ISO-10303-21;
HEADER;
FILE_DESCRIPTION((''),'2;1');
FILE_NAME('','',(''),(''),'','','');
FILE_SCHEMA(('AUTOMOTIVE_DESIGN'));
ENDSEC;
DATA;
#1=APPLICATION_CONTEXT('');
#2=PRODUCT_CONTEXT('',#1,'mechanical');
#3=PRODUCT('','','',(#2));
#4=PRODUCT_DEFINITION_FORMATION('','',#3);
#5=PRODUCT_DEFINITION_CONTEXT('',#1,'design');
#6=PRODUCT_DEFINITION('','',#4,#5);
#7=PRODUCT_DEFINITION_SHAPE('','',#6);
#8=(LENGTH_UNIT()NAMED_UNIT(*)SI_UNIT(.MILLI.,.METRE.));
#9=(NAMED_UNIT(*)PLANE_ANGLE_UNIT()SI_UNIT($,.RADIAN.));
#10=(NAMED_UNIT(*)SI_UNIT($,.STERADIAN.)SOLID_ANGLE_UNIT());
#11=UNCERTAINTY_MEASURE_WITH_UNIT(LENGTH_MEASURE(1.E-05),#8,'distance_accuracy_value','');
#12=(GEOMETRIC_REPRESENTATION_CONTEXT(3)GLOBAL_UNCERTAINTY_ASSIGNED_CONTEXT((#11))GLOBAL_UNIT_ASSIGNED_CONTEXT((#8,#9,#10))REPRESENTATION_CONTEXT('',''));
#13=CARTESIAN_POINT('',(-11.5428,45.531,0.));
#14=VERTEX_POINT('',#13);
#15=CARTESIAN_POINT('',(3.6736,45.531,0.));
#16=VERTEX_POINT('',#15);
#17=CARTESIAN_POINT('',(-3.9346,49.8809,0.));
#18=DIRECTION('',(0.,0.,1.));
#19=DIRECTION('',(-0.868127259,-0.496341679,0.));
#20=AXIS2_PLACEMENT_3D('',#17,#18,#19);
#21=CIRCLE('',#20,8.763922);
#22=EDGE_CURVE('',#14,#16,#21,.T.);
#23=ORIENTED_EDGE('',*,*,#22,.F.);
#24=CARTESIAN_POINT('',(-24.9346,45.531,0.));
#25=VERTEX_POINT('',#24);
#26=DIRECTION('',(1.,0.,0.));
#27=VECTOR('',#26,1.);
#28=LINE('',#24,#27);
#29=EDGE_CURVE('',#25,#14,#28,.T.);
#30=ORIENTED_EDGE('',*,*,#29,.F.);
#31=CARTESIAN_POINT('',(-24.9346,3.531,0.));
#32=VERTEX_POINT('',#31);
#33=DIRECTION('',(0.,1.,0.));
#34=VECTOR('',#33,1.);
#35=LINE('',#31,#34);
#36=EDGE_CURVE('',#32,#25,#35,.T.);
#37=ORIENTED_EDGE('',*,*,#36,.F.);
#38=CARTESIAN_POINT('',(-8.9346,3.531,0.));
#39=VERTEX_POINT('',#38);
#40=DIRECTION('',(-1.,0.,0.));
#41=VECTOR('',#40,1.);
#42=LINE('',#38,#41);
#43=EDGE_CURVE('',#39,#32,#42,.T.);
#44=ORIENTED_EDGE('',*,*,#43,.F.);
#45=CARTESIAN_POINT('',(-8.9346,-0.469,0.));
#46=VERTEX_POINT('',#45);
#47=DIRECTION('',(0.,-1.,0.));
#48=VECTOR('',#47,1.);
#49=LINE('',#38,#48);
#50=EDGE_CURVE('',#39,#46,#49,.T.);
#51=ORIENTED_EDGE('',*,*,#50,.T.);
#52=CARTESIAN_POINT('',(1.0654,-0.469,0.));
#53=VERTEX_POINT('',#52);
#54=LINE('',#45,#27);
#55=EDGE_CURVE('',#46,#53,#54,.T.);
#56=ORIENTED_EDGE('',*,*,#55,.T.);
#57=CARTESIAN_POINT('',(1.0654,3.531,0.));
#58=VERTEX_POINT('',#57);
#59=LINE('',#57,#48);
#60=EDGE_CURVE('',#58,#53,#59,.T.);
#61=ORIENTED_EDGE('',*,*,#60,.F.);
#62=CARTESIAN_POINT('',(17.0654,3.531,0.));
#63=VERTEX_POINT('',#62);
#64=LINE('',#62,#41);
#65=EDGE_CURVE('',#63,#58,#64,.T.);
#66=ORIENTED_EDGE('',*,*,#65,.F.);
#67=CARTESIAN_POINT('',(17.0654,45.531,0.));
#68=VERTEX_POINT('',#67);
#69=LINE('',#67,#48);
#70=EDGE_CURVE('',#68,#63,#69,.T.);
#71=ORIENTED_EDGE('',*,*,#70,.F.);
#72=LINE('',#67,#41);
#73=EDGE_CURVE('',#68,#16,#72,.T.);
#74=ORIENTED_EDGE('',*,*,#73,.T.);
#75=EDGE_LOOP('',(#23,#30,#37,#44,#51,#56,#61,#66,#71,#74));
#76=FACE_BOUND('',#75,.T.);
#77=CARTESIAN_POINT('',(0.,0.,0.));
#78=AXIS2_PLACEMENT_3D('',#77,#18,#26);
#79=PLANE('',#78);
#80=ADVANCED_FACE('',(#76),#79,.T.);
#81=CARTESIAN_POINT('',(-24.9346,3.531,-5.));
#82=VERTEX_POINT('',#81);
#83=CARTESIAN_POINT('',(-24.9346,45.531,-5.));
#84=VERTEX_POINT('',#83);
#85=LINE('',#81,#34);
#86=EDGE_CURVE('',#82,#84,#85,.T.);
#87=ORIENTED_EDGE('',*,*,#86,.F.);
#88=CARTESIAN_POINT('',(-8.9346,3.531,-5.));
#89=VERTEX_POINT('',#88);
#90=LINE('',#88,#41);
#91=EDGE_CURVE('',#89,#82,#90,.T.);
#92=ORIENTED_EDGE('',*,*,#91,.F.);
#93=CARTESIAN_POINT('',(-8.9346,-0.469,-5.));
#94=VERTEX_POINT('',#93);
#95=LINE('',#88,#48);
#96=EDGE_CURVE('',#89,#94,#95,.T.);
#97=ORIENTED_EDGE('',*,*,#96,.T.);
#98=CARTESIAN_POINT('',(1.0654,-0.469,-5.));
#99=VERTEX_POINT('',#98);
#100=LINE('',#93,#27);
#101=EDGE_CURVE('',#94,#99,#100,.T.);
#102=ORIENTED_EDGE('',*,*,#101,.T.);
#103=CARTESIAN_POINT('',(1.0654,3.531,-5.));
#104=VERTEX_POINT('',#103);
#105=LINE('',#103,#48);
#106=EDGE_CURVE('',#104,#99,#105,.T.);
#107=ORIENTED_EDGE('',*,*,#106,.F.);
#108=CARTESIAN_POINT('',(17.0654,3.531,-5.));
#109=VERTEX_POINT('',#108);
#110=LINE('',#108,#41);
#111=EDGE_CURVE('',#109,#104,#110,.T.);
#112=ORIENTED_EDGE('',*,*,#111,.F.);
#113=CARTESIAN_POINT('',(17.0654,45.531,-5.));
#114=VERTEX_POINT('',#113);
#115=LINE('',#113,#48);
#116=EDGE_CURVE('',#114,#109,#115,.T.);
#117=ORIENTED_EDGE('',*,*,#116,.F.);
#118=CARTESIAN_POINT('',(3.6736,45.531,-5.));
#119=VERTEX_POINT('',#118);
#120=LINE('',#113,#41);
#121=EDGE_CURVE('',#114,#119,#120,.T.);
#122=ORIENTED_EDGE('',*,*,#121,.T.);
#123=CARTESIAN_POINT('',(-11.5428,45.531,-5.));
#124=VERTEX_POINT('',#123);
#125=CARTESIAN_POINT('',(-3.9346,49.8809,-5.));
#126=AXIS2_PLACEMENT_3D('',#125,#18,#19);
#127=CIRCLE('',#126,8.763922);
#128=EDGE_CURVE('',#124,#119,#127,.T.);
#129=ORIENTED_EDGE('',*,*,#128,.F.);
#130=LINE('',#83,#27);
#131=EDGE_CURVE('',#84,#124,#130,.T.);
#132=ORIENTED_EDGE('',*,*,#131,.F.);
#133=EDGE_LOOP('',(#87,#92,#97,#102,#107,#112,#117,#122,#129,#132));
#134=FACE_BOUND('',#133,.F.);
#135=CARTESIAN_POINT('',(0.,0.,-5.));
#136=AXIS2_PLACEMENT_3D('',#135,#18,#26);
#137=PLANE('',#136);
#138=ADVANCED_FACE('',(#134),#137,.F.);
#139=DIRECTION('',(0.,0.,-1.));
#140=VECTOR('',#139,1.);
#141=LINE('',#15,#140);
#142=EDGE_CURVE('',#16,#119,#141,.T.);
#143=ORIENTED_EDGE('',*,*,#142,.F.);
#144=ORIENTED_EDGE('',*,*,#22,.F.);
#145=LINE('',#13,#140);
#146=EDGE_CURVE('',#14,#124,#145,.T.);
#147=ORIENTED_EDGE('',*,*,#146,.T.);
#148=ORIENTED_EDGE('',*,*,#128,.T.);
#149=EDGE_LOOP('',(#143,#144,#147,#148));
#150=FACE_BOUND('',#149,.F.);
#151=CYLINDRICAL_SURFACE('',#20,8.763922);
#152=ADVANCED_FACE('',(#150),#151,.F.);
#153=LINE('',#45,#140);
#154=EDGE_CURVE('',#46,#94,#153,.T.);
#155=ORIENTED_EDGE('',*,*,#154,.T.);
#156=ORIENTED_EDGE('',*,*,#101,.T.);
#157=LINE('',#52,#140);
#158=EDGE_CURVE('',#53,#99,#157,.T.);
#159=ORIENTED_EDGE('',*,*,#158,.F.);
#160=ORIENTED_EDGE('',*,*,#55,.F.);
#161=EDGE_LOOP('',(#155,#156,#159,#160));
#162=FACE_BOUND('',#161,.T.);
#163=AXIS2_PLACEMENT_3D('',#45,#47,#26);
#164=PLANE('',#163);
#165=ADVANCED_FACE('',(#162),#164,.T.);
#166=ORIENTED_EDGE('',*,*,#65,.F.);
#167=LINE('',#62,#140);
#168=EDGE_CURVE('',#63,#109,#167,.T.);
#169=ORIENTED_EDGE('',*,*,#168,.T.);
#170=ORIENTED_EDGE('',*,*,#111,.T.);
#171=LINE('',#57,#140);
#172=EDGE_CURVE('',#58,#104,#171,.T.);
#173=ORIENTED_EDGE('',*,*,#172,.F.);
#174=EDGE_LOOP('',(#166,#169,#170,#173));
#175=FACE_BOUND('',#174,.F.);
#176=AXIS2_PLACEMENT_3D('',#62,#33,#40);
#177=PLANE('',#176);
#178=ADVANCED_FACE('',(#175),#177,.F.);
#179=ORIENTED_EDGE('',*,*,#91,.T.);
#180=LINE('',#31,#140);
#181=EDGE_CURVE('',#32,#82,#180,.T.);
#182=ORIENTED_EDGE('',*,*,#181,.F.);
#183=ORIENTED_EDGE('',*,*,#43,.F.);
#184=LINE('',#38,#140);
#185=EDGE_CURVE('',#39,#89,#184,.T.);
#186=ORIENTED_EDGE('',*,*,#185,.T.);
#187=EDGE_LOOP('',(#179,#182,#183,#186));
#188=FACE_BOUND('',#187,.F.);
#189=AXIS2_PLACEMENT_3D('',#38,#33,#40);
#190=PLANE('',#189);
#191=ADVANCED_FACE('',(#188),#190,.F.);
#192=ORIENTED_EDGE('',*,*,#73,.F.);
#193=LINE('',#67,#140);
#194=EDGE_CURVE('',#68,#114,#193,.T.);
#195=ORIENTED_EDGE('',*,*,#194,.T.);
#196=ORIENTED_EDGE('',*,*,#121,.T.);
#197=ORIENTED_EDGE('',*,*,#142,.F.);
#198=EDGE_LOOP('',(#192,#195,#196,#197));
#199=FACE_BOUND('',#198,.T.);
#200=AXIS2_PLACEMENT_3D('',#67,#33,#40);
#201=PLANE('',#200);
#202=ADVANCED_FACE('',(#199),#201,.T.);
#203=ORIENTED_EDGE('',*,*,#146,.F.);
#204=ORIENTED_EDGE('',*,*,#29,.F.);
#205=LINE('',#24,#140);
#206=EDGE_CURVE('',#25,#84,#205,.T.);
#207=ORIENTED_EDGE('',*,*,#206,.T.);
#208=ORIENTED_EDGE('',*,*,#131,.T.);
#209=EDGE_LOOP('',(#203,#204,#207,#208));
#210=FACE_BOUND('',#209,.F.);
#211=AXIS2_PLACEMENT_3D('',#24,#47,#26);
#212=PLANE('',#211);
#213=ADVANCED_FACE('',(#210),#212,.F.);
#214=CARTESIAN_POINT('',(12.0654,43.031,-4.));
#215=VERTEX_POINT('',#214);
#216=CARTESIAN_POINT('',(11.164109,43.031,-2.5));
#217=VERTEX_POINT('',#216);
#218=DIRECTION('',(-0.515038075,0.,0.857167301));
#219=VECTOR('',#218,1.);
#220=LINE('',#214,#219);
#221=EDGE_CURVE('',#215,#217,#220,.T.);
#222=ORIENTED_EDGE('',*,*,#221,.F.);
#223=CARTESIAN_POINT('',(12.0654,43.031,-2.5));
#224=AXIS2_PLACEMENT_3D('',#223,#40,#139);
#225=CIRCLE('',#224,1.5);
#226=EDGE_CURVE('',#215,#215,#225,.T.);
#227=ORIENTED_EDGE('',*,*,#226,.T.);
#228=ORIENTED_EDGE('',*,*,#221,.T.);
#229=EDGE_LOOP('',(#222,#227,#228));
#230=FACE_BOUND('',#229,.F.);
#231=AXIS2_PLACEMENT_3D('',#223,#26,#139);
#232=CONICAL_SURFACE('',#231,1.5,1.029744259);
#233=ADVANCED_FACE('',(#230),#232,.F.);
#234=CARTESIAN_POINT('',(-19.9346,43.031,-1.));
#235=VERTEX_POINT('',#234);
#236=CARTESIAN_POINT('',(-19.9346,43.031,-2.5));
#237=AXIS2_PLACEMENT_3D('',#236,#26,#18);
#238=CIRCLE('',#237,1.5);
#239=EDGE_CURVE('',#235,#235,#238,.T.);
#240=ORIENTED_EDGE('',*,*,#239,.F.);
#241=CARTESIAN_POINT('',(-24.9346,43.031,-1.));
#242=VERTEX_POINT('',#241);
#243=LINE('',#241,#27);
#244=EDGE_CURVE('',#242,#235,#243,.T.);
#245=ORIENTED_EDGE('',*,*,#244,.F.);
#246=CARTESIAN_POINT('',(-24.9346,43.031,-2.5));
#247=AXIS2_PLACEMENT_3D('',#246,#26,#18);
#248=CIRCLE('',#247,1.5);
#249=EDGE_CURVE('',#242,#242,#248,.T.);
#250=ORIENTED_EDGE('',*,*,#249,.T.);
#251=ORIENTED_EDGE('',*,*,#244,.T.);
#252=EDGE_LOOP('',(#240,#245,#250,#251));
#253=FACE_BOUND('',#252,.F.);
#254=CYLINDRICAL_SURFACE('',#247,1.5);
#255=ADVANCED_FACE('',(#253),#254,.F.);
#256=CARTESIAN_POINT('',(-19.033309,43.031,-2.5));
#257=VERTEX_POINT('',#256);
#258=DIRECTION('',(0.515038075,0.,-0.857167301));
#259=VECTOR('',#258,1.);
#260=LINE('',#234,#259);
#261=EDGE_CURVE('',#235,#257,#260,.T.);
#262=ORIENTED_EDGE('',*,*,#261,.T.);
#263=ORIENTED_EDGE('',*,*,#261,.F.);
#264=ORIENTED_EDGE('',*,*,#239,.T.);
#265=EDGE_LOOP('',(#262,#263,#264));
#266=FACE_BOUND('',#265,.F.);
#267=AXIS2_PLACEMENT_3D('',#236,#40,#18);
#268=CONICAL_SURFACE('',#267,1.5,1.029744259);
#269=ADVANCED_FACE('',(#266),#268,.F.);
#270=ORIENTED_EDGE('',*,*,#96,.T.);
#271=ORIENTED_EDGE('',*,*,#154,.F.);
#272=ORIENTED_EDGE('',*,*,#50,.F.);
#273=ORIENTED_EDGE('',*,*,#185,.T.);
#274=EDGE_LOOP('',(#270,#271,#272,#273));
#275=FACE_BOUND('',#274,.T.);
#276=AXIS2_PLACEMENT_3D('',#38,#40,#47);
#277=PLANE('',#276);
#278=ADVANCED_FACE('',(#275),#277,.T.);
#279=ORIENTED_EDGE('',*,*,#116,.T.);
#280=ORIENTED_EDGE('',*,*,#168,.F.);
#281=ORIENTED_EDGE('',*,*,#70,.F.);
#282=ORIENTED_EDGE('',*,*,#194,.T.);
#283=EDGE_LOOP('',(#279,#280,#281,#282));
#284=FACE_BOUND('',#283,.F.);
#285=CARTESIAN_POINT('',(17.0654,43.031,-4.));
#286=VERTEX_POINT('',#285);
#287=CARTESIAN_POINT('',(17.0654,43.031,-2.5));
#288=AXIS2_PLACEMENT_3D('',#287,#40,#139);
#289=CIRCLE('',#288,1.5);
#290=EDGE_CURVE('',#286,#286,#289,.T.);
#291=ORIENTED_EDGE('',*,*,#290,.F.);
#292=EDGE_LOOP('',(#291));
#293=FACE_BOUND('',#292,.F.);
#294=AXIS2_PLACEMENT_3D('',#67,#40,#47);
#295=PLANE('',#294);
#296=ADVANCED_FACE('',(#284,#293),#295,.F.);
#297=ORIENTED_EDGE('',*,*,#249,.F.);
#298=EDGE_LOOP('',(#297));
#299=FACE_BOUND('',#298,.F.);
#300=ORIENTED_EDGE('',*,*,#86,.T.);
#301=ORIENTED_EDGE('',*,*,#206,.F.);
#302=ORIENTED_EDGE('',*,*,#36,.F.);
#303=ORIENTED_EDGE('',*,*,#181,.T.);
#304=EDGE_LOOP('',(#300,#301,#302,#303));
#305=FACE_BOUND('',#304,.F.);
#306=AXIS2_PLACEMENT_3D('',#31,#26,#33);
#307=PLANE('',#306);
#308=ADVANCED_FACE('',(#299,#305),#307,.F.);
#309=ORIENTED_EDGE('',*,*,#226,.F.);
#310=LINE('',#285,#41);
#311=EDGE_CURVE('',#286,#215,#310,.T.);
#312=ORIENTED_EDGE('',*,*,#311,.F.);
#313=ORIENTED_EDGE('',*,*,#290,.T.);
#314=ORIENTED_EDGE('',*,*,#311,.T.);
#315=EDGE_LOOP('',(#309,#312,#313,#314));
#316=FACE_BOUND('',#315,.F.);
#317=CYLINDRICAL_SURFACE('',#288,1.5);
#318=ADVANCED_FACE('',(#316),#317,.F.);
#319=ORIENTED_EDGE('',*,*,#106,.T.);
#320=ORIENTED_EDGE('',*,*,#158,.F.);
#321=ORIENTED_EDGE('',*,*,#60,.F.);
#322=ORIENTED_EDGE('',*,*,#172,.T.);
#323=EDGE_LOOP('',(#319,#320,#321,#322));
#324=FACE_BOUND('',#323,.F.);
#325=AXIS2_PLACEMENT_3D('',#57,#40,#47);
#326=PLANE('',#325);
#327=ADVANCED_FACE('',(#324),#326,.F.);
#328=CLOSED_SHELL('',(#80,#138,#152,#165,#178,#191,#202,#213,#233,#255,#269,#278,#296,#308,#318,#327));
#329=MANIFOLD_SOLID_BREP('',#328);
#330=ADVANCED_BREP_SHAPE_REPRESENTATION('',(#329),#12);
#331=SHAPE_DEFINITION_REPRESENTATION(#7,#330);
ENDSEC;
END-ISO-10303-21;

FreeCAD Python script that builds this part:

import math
import FreeCAD as App
import Part
import Sketcher
from FreeCAD import Vector
Q = App.Units.Quantity

doc = App.newDocument("Part")
body = doc.addObject("PartDesign::Body", "Body")

sketch1 = body.newObject("Sketcher::SketchObject", "Sketch")
sketch1.AttachmentSupport = (doc.getObject("XY_Plane"), [""])
sketch1.MapMode = "FlatFace"
sketch1.addGeometry([
    Part.LineSegment(Vector(-24.9, 3.5, 0), Vector(-8.9, 3.5, 0)),
    Part.LineSegment(Vector(-8.9, 3.5, 0), Vector(-8.9, -0.5, 0)),
    Part.LineSegment(Vector(-8.9, -0.5, 0), Vector(1.1, -0.5, 0)),
    Part.LineSegment(Vector(1.1, -0.5, 0), Vector(1.1, 3.5, 0)),
    Part.LineSegment(Vector(1.1, 3.5, 0), Vector(17.1, 3.5, 0)),
    Part.LineSegment(Vector(17.1, 3.5, 0), Vector(17.1, 45.5, 0)),
    Part.LineSegment(Vector(17.1, 45.5, 0), Vector(3.7, 45.5, 0)),
    Part.ArcOfCircle(Part.Circle(Vector(-3.9, 49.9, 0), Vector(0, 0, 1), 8.8), math.radians(-150), math.radians(-30)),
    Part.LineSegment(Vector(-11.5, 45.5, 0), Vector(-24.9, 45.5, 0)),
    Part.LineSegment(Vector(-24.9, 45.5, 0), Vector(-24.9, 3.5, 0)),
], False)
sketch1.addConstraint([
    Sketcher.Constraint("Coincident", 0, 2, 1, 1),
    Sketcher.Constraint("Coincident", 1, 2, 2, 1),
    Sketcher.Constraint("Coincident", 2, 2, 3, 1),
    Sketcher.Constraint("Coincident", 3, 2, 4, 1),
    Sketcher.Constraint("Coincident", 4, 2, 5, 1),
    Sketcher.Constraint("Coincident", 5, 2, 6, 1),
    Sketcher.Constraint("Coincident", 6, 2, 7, 2),
    Sketcher.Constraint("Coincident", 7, 1, 8, 1),
    Sketcher.Constraint("Coincident", 8, 2, 9, 1),
    Sketcher.Constraint("Coincident", 9, 2, 0, 1),
    Sketcher.Constraint("Horizontal", 0),
    Sketcher.Constraint("Vertical", 1),
    Sketcher.Constraint("Horizontal", 2),
    Sketcher.Constraint("Vertical", 3),
    Sketcher.Constraint("Horizontal", 4),
    Sketcher.Constraint("Vertical", 5),
    Sketcher.Constraint("Horizontal", 6),
    Sketcher.Constraint("Horizontal", 8),
    Sketcher.Constraint("Vertical", 9),
    Sketcher.Constraint("Horizontal", 0, 2, 3, 2),
    Sketcher.Constraint("Horizontal", 6, 2, 7, 1),
    Sketcher.Constraint("Equal", 0, 4),
    Sketcher.Constraint("Equal", 6, 8),
    Sketcher.Constraint("DistanceX", 0, 1, 0, 2, Q("16 mm")),
    Sketcher.Constraint("DistanceX", 2, 1, 2, 2, Q("10 mm")),
    Sketcher.Constraint("DistanceY", 1, 2, 1, 1, Q("4 mm")),
    Sketcher.Constraint("DistanceY", 5, 1, 5, 2, Q("42 mm")),
    Sketcher.Constraint("Radius", 7, Q("8.764 mm")),
    Sketcher.Constraint("DistanceY", 0, 2, 7, 3, Q("46.35 mm")),
    Sketcher.Constraint("DistanceY", -1, 1, 7, 3, Q("49.881 mm")),
    Sketcher.Constraint("DistanceX", 7, 3, -1, 1, Q("3.9346 mm")),
])
pad1 = body.newObject("PartDesign::Pad", "Pad")
pad1.Profile = sketch1
pad1.Length = 5
pad1.Reversed = True

sketch2 = body.newObject("Sketcher::SketchObject", "Sketch001")
sketch2.AttachmentSupport = (doc.getObject("YZ_Plane"), [""])
sketch2.MapMode = "FlatFace"
sketch2.AttachmentOffset = App.Placement(Vector(0, 0, 17.0654), App.Rotation())
sketch2.addGeometry(Part.Circle(Vector(43, -2.5, 0), Vector(0, 0, 1), 1.5), False)
sketch2.addConstraint([
    Sketcher.Constraint("Diameter", 0, Q("3 mm")),
    Sketcher.Constraint("DistanceY", 0, 3, -1, 1, Q("2.5 mm")),
    Sketcher.Constraint("DistanceX", -1, 1, 0, 3, Q("43.031 mm")),
])
doc.recompute()
hole = body.newObject("PartDesign::Hole", "Hole")
hole.Profile = sketch2
hole.ThreadType = "None"
hole.Diameter = 3
hole.DepthType = "Dimension"
hole.Depth = 5
hole.DrillPoint = "Angled"
hole.DrillPointAngle = 118

sketch3 = body.newObject("Sketcher::SketchObject", "Sketch002")
sketch3.AttachmentSupport = (doc.getObject("YZ_Plane"), [""])
sketch3.MapMode = "FlatFace"
sketch3.AttachmentOffset = App.Placement(Vector(0, 0, -24.9346), App.Rotation())
sketch3.addGeometry(Part.Circle(Vector(43, -2.5, 0), Vector(0, 0, 1), 1.5), False)
sketch3.addConstraint([
    Sketcher.Constraint("Diameter", 0, Q("3 mm")),
    Sketcher.Constraint("DistanceY", 0, 3, -1, 1, Q("2.5 mm")),
    Sketcher.Constraint("DistanceX", -1, 1, 0, 3, Q("43.031 mm")),
])
doc.recompute()
hole2 = body.newObject("PartDesign::Hole", "Hole001")
hole2.Profile = sketch3
hole2.ThreadType = "None"
hole2.Diameter = 3
hole2.DepthType = "Dimension"
hole2.Depth = 5
hole2.DrillPoint = "Angled"
hole2.DrillPointAngle = 118
hole2.Reversed = True

doc.recompute()
